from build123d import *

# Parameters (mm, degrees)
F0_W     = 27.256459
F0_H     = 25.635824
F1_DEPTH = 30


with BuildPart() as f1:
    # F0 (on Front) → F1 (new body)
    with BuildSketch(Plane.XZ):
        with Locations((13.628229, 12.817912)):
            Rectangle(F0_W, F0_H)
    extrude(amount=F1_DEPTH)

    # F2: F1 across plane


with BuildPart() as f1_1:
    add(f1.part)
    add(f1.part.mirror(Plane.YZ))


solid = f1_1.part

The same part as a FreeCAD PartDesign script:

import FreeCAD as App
import Part
import Sketcher


def add_polygon(sketch, points):
    """Adds a closed chain of lines whose ends are joined by coincident constraints."""
    first, n = sketch.GeometryCount, len(points)
    for a, b in zip(points, points[1:] + points[:1]):
        sketch.addGeometry(Part.LineSegment(App.Vector(*a, 0), App.Vector(*b, 0)), False)
    for i in range(n):
        sketch.addConstraint(Sketcher.Constraint("Coincident", first + i, 2, first + (i + 1) % n, 1))

doc = App.newDocument("Part")
body = doc.addObject("PartDesign::Body", "Body")

sketch1 = body.newObject("Sketcher::SketchObject", "Sketch")
sketch1.AttachmentSupport = (doc.getObject("XZ_Plane"), [""])
sketch1.MapMode = "FlatFace"
add_polygon(sketch1, [(0, 26), (0, 0), (27, 0), (27, 26)])
sketch1.addConstraint([
    Sketcher.Constraint("Vertical", 0),
    Sketcher.Constraint("Horizontal", 1),
    Sketcher.Constraint("Vertical", 2),
    Sketcher.Constraint("Horizontal", 3),
    Sketcher.Constraint("Coincident", 0, 2, -1, 1),
    Sketcher.Constraint("DistanceX", 1, 1, 1, 2, 27.256459),
    Sketcher.Constraint("DistanceY", 0, 2, 0, 1, 25.635824),
])
pad1 = body.newObject("PartDesign::Pad", "Pad")
pad1.Profile = sketch1
pad1.Length = 30
body2 = doc.addObject("PartDesign::Body", "Body001")
doc.recompute()

body2.BaseFeature = body
doc.recompute()

mirroring = doc.addObject("Part::Mirroring", "Mirroring")
mirroring.Source = body
mirroring.Base = App.Vector(0, 0, 0)
mirroring.Normal = App.Vector(1, 0, 0)
body3 = doc.addObject("PartDesign::Body", "Body002")
body3.BaseFeature = mirroring
boolean = body2.newObject("PartDesign::Boolean", "Boolean")
boolean.Type = "Fuse"
boolean.addObjects([body3])
doc.recompute()
mirroring.Visibility = False

doc.recompute()
